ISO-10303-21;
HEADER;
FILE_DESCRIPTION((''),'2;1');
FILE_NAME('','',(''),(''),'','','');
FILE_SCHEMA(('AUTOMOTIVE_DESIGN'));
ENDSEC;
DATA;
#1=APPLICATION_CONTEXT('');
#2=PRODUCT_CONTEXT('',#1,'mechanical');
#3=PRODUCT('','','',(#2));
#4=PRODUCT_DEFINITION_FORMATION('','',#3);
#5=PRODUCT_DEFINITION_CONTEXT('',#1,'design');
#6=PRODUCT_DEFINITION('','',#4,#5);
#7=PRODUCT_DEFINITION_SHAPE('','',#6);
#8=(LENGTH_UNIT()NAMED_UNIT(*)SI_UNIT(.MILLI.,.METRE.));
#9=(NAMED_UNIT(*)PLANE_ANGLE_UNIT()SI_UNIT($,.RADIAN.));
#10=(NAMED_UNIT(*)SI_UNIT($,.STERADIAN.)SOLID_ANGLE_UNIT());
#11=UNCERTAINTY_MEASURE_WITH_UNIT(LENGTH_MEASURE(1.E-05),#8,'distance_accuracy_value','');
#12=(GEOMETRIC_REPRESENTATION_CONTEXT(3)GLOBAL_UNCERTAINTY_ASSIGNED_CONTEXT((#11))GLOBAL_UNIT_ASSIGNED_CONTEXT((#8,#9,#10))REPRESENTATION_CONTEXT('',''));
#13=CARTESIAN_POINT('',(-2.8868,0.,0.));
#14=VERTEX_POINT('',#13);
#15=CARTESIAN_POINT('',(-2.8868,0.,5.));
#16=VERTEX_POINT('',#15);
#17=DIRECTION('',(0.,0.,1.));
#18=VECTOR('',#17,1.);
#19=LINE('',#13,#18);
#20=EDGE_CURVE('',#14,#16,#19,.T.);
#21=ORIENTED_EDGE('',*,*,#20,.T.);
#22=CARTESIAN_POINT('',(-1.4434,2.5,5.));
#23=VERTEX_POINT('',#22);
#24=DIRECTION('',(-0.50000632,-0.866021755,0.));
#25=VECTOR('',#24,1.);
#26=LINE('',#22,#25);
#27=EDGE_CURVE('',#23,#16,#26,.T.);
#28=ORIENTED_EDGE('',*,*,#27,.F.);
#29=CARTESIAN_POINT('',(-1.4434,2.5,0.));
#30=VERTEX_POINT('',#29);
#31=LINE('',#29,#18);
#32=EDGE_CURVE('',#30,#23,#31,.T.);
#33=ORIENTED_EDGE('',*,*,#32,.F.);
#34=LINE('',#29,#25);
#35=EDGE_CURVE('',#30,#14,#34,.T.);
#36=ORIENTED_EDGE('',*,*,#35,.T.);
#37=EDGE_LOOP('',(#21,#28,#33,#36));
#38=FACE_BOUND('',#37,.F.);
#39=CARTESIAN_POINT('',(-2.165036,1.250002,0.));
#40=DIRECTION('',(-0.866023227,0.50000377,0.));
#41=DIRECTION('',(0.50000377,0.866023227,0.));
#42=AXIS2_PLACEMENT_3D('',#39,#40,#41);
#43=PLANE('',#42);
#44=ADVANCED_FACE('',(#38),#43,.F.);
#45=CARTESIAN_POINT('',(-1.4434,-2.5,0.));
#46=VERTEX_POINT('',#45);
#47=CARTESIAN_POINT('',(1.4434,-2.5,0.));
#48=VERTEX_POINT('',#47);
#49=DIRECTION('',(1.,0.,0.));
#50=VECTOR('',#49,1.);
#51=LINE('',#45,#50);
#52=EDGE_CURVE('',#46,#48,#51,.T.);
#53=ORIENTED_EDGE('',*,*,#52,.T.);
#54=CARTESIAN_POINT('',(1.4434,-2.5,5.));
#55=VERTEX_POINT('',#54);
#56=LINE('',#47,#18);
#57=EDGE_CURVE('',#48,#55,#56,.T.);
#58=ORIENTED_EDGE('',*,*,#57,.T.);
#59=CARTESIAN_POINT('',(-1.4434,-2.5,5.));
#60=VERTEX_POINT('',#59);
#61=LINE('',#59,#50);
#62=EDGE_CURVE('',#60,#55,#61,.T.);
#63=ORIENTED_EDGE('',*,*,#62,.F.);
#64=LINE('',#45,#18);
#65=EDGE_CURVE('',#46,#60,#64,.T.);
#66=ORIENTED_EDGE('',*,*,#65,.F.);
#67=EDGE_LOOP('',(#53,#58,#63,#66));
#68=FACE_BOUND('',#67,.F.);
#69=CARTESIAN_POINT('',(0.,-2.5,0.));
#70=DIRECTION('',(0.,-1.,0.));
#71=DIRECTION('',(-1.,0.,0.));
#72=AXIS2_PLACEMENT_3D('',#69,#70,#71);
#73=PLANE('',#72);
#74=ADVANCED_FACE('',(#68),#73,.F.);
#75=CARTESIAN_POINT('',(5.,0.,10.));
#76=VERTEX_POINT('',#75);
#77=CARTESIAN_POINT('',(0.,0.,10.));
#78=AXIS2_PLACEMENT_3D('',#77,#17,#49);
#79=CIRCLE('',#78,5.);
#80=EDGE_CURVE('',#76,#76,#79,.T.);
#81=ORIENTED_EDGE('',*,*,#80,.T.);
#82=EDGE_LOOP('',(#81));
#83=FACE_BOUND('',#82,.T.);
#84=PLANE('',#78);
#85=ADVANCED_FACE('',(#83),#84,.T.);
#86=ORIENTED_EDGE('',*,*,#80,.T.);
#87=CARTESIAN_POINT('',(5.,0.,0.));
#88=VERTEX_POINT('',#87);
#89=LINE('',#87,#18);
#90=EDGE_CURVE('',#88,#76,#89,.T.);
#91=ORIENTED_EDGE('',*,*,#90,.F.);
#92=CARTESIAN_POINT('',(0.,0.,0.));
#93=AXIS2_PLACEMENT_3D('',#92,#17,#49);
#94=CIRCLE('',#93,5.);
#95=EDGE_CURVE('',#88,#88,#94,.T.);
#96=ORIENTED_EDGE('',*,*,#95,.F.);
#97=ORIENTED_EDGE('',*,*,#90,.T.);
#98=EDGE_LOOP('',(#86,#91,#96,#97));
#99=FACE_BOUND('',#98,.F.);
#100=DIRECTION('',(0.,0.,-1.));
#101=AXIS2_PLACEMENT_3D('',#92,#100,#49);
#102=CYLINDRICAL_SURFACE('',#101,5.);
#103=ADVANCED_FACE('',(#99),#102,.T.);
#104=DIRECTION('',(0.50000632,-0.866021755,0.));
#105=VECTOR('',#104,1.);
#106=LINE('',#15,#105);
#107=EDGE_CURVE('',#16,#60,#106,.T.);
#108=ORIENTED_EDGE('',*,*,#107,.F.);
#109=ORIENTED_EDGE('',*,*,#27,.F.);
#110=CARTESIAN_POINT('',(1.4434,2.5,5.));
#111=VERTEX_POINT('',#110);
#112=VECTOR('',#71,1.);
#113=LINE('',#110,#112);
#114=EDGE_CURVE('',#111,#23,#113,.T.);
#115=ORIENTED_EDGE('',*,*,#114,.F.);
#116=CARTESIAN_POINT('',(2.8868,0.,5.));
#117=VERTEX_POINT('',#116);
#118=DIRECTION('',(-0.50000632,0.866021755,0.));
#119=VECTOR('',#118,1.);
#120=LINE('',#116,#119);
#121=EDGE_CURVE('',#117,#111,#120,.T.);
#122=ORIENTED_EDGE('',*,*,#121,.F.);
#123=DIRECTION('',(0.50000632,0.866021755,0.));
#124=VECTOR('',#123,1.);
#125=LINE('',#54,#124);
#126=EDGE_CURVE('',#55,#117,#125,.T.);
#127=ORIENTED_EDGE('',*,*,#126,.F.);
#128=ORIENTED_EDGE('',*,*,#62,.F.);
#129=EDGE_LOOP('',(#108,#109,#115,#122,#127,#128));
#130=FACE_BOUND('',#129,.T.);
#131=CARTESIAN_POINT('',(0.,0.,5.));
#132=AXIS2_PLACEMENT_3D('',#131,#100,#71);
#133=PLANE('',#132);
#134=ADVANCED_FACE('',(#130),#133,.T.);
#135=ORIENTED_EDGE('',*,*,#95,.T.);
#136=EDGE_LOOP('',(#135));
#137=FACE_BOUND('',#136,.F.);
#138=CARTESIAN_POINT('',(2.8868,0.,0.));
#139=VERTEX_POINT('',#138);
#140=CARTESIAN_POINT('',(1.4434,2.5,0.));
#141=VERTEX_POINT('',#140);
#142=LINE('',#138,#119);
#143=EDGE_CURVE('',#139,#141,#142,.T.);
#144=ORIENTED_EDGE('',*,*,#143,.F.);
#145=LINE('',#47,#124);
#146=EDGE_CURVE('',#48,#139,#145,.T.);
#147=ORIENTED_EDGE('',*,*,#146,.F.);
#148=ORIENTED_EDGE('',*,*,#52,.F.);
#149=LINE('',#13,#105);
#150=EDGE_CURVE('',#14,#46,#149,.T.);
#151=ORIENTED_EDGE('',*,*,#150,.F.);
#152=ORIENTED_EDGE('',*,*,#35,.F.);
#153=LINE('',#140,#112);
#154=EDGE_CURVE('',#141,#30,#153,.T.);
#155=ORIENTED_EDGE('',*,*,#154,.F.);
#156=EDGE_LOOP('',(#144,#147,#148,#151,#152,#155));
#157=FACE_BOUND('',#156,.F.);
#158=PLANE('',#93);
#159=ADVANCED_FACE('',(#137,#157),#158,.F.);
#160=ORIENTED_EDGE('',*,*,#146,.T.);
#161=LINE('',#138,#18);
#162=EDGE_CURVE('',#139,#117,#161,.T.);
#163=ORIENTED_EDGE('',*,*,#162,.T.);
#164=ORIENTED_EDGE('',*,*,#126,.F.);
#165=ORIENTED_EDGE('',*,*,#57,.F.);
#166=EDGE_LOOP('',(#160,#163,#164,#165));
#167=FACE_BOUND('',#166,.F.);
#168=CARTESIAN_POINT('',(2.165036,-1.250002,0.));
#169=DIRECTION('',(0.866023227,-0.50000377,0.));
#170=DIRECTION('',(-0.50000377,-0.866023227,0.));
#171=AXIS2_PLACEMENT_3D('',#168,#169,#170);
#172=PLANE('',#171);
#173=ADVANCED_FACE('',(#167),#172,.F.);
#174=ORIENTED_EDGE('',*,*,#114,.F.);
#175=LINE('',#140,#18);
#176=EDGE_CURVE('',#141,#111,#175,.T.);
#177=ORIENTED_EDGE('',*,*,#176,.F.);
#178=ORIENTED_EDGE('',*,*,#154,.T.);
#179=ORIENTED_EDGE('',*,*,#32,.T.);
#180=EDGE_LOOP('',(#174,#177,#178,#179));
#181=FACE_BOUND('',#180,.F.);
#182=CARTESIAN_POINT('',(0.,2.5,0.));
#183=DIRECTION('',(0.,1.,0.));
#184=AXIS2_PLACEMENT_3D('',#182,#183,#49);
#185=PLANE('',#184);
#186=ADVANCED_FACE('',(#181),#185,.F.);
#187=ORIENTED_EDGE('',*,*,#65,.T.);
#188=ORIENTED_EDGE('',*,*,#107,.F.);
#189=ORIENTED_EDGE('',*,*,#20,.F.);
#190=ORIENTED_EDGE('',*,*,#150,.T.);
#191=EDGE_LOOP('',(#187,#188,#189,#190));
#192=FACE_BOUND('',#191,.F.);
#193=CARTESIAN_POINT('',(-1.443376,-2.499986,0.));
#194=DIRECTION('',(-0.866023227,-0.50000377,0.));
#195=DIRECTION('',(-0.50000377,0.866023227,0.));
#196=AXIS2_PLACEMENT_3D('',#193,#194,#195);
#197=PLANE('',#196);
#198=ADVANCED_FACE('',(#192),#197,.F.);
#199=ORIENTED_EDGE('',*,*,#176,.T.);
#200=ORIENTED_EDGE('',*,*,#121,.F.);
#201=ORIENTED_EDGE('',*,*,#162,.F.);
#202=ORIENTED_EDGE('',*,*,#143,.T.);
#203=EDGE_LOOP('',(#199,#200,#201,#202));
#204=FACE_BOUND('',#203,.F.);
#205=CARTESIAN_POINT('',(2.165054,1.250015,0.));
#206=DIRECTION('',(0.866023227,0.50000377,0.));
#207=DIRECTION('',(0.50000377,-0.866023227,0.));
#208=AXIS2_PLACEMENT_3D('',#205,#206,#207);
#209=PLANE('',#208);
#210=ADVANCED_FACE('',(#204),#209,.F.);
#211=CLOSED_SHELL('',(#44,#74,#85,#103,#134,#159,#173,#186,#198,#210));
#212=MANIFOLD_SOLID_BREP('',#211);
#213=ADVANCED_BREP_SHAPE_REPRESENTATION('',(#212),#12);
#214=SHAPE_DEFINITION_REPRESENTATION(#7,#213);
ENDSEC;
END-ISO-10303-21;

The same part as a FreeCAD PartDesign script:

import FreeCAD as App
import Part
import Sketcher
Q = App.Units.Quantity


def add_polygon(sketch, points):
    """Adds a closed chain of lines whose ends are joined by coincident constraints."""
    first, n = sketch.GeometryCount, len(points)
    for a, b in zip(points, points[1:] + points[:1]):
        sketch.addGeometry(Part.LineSegment(App.Vector(*a, 0), App.Vector(*b, 0)), False)
    for i in range(n):
        sketch.addConstraint(Sketcher.Constraint("Coincident", first + i, 2, first + (i + 1) % n, 1))

doc = App.newDocument("Part")
body = doc.addObject("PartDesign::Body", "Body")

# Sketch on XY plane
sketch1 = body.newObject("Sketcher::SketchObject", "Sketch")
sketch1.AttachmentSupport = (doc.getObject("XY_Plane"), [""])
sketch1.MapMode = "FlatFace"
sketch1.addGeometry(Part.Circle(App.Vector(0, 0, 0), App.Vector(0, 0, 1), 5), False)
sketch1.addConstraint(Sketcher.Constraint("Coincident", 0, 3, -1, 1))
sketch1.addConstraint(Sketcher.Constraint("Diameter", 0, 10.0))
pad1 = body.newObject("PartDesign::Pad", "Pad")
pad1.Profile = sketch1
pad1.Length = 10

# Sketch on XY plane
sketch2 = body.newObject("Sketcher::SketchObject", "Sketch001")
sketch2.AttachmentSupport = (doc.getObject("XY_Plane"), [""])
sketch2.MapMode = "FlatFace"
add_polygon(sketch2, [(-2.9, 0), (-1.4, 2.5), (1.4, 2.5), (2.9, 0), (1.4, -2.5), (-1.4, -2.5)])  # lines 0-5
sketch2.addConstraint(Sketcher.Constraint("Horizontal", 1))
sketch2.addConstraint(Sketcher.Constraint("Horizontal", 4))
sketch2.addConstraint(Sketcher.Constraint("Symmetric", 0, 2, 3, 2, -1, 1))
sketch2.addConstraint(Sketcher.Constraint("Symmetric", 2, 2, 5, 2, -1, 1))
sketch2.addConstraint(Sketcher.Constraint("PointOnObject", 2, 2, -1))
sketch2.addConstraint(Sketcher.Constraint("Parallel", 2, 5))
sketch2.addConstraint(Sketcher.Constraint("Vertical", 1, 2, 3, 2))
sketch2.addConstraint(Sketcher.Constraint("DistanceY", 3, 2, 1, 2, 5.0))
sketch2.addConstraint(Sketcher.Constraint("Angle", 0, Q("59.9996 deg")))
sketch2.addConstraint(Sketcher.Constraint("DistanceX", 1, 1, 1, 2, 2.8868))
pocket1 = body.newObject("PartDesign::Pocket", "Pocket")
pocket1.Profile = sketch2
pocket1.Length = 5
pocket1.Reversed = True

doc.recompute()
